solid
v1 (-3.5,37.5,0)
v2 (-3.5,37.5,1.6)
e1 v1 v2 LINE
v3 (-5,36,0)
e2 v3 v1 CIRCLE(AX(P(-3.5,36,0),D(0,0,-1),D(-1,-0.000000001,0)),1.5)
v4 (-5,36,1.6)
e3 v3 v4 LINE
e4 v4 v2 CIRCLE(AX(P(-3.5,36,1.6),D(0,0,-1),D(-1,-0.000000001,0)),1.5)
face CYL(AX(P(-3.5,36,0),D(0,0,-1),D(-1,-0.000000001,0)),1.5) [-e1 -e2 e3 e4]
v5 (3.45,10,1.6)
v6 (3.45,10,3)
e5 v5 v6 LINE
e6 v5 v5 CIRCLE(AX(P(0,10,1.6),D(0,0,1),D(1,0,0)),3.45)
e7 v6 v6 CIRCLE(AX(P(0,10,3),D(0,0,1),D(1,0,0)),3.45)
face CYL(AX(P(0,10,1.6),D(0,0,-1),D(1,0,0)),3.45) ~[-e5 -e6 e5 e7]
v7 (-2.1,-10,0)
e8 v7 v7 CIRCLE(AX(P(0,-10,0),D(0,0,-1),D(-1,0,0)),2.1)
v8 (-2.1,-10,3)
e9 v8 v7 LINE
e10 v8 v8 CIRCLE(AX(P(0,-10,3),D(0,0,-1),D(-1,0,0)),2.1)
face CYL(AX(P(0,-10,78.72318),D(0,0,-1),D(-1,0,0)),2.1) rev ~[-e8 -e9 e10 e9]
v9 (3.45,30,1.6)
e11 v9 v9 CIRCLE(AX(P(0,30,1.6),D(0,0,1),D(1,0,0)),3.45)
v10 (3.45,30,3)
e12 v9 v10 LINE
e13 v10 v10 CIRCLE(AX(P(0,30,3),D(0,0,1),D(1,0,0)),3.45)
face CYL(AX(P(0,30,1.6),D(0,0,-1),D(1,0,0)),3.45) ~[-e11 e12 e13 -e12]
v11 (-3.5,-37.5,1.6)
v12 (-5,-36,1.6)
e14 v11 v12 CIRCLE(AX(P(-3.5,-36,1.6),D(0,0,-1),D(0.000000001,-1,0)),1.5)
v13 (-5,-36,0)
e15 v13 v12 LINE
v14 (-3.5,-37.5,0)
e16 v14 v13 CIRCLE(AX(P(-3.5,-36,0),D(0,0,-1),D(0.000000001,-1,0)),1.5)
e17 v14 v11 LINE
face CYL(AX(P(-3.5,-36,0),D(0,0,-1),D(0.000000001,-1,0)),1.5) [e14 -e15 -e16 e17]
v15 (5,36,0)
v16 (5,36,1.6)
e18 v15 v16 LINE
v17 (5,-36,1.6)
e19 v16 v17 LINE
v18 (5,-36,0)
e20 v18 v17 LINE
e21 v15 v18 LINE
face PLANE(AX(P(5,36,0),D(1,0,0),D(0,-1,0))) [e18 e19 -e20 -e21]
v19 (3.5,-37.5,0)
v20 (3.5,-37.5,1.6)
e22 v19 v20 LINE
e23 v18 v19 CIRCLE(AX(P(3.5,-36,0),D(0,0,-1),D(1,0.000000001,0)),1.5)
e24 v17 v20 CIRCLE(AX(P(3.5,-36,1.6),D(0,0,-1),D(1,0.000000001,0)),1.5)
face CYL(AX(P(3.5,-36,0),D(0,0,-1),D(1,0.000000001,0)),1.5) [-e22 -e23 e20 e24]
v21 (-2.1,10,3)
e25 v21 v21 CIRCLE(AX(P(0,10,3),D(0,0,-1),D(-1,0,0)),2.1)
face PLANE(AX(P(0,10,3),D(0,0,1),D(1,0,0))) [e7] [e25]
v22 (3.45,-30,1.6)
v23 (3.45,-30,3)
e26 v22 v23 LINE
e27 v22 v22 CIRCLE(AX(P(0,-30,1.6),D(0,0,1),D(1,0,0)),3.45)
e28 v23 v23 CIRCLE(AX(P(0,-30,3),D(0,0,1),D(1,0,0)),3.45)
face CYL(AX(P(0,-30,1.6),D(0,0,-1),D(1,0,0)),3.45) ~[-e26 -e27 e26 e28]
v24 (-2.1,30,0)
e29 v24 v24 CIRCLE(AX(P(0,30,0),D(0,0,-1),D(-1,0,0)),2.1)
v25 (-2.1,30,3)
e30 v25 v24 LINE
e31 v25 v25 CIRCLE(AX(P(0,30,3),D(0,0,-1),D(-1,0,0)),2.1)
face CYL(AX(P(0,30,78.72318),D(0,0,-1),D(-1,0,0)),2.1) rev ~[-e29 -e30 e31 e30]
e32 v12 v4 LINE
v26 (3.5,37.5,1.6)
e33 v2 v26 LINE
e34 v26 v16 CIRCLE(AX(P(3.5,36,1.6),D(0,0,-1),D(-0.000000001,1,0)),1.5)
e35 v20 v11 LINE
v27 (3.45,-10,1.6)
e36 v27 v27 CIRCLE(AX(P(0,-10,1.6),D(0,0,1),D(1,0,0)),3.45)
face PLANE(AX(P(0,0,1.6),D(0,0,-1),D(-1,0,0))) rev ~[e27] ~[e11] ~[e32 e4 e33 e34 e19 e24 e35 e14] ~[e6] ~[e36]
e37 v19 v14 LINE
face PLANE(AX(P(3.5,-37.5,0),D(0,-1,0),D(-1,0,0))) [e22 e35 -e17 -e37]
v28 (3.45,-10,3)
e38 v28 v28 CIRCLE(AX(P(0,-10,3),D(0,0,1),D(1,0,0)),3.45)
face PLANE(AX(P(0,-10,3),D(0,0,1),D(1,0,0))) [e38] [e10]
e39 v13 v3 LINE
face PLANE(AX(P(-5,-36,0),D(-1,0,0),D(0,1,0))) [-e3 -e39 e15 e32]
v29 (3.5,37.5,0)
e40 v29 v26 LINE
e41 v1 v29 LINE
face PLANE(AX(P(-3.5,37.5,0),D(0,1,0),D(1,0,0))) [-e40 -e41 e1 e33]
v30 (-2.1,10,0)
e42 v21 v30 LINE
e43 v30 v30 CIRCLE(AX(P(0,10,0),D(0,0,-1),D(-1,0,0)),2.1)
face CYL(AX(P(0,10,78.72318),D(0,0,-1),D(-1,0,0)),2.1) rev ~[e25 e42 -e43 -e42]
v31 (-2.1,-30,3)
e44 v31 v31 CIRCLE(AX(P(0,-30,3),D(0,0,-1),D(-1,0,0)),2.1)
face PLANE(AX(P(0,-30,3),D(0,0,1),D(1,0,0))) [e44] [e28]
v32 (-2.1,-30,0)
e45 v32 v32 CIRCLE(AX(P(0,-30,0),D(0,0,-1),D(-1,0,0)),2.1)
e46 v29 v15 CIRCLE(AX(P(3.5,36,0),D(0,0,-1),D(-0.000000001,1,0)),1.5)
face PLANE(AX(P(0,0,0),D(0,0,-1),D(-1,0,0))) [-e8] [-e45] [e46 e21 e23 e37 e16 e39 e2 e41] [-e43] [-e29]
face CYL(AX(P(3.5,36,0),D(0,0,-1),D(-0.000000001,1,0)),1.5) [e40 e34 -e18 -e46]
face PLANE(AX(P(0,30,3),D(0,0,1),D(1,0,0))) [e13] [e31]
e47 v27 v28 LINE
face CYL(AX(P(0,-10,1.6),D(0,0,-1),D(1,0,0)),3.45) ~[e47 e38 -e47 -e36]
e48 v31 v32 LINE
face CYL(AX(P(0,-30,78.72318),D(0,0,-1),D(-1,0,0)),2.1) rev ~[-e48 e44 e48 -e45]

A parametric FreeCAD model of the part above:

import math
import FreeCAD as App
import Part
import Sketcher

doc = App.newDocument("Part")
body = doc.addObject("PartDesign::Body", "Body")

# Sketch on XY plane
sketch1 = doc.addObject("Sketcher::SketchObject", "Sketch")
body.addObject(sketch1)
sketch1.AttachmentSupport = (doc.XY_Plane, [""])
sketch1.MapMode = "FlatFace"
sketch1.addGeometry(Part.LineSegment(App.Vector(-3.5, -37.5, 0), App.Vector(3.5, -37.5, 0)), False)
sketch1.addGeometry(Part.ArcOfCircle(Part.Circle(App.Vector(3.5, -36, 0), App.Vector(0, 0, 1), 1.5), math.radians(-90), math.radians(0)), False)
sketch1.addGeometry(Part.LineSegment(App.Vector(5, -36, 0), App.Vector(5, 36, 0)), False)
sketch1.addGeometry(Part.ArcOfCircle(Part.Circle(App.Vector(3.5, 36, 0), App.Vector(0, 0, 1), 1.5), math.radians(0), math.radians(90)), False)
sketch1.addGeometry(Part.LineSegment(App.Vector(3.5, 37.5, 0), App.Vector(-3.5, 37.5, 0)), False)
sketch1.addGeometry(Part.ArcOfCircle(Part.Circle(App.Vector(-3.5, 36, 0), App.Vector(0, 0, 1), 1.5), math.radians(90), math.radians(180)), False)
sketch1.addGeometry(Part.LineSegment(App.Vector(-5, 36, 0), App.Vector(-5, -36, 0)), False)
sketch1.addGeometry(Part.ArcOfCircle(Part.Circle(App.Vector(-3.5, -36, 0), App.Vector(0, 0, 1), 1.5), math.radians(180), math.radians(270)), False)
sketch1.addConstraint(Sketcher.Constraint("Tangent", 0, 2, 1, 1))
sketch1.addConstraint(Sketcher.Constraint("Tangent", 1, 2, 2, 1))
sketch1.addConstraint(Sketcher.Constraint("Tangent", 2, 2, 3, 1))
sketch1.addConstraint(Sketcher.Constraint("Tangent", 3, 2, 4, 1))
sketch1.addConstraint(Sketcher.Constraint("Tangent", 4, 2, 5, 1))
sketch1.addConstraint(Sketcher.Constraint("Tangent", 5, 2, 6, 1))
sketch1.addConstraint(Sketcher.Constraint("Tangent", 6, 2, 7, 1))
sketch1.addConstraint(Sketcher.Constraint("Tangent", 7, 2, 0, 1))
sketch1.addConstraint(Sketcher.Constraint("Horizontal", 0))
sketch1.addConstraint(Sketcher.Constraint("Vertical", 2))
sketch1.addConstraint(Sketcher.Constraint("Horizontal", 4))
sketch1.addConstraint(Sketcher.Constraint("Vertical", 6))
sketch1.addConstraint(Sketcher.Constraint("Equal", 1, 3))
sketch1.addConstraint(Sketcher.Constraint("Equal", 3, 5))
sketch1.addConstraint(Sketcher.Constraint("Equal", 5, 7))
sketch1.addConstraint(Sketcher.Constraint("Symmetric", 1, 3, 5, 3, -1, 1))
sketch1.addConstraint(Sketcher.Constraint("Radius", 1, 1.5))
sketch1.addConstraint(Sketcher.Constraint("DistanceX", 0, 1, 0, 2, 7.0))
sketch1.addConstraint(Sketcher.Constraint("DistanceY", 2, 1, 2, 2, 72.0))
pad1 = doc.addObject("PartDesign::Pad", "Pad")
body.addObject(pad1)
pad1.Profile = sketch1
pad1.Length = 1.6

# Sketch on XY plane
sketch2 = doc.addObject("Sketcher::SketchObject", "Sketch001")
body.addObject(sketch2)
sketch2.AttachmentSupport = (doc.XY_Plane, [""])
sketch2.MapMode = "FlatFace"
sketch2.AttachmentOffset = App.Placement(App.Vector(0, 0, 1.6), App.Rotation())
sketch2.addGeometry(Part.Circle(App.Vector(0, 10, 0), App.Vector(0, 0, 1), 3.45), False)
sketch2.addGeometry(Part.Circle(App.Vector(0, 30, 0), App.Vector(0, 0, 1), 3.45), False)
sketch2.addGeometry(Part.Circle(App.Vector(0, -10, 0), App.Vector(0, 0, 1), 3.45), False)
sketch2.addGeometry(Part.Circle(App.Vector(0, -30, 0), App.Vector(0, 0, 1), 3.45), False)
sketch2.addConstraint(Sketcher.Constraint("Equal", 0, 1))
sketch2.addConstraint(Sketcher.Constraint("Equal", 1, 2))
sketch2.addConstraint(Sketcher.Constraint("Equal", 2, 3))
sketch2.addConstraint(Sketcher.Constraint("Symmetric", 0, 3, 2, 3, -1, 1))
sketch2.addConstraint(Sketcher.Constraint("Symmetric", 1, 3, 3, 3, -1, 1))
sketch2.addConstraint(Sketcher.Constraint("PointOnObject", 0, 3, -2))
sketch2.addConstraint(Sketcher.Constraint("PointOnObject", 1, 3, -2))
sketch2.addConstraint(Sketcher.Constraint("Diameter", 0, 6.9))
sketch2.addConstraint(Sketcher.Constraint("DistanceY", -1, 1, 0, 3, 10.0))
sketch2.addConstraint(Sketcher.Constraint("DistanceY", -1, 1, 1, 3, 30.0))
pad2 = doc.addObject("PartDesign::Pad", "Pad001")
body.addObject(pad2)
pad2.Profile = sketch2
pad2.Length = 1.4

# Sketch on XY plane
sketch3 = doc.addObject("Sketcher::SketchObject", "Sketch002")
body.addObject(sketch3)
sketch3.AttachmentSupport = (doc.XY_Plane, [""])
sketch3.MapMode = "FlatFace"
sketch3.AttachmentOffset = App.Placement(App.Vector(0, 0, 3), App.Rotation())
sketch3.addGeometry(Part.Circle(App.Vector(0, 30, 0), App.Vector(0, 0, 1), 2.1), False)
sketch3.addGeometry(Part.Circle(App.Vector(0, 10, 0), App.Vector(0, 0, 1), 2.1), False)
sketch3.addGeometry(Part.Circle(App.Vector(0, -10, 0), App.Vector(0, 0, 1), 2.1), False)
sketch3.addGeometry(Part.Circle(App.Vector(0, -30, 0), App.Vector(0, 0, 1), 2.1), False)
sketch3.addConstraint(Sketcher.Constraint("Equal", 0, 1))
sketch3.addConstraint(Sketcher.Constraint("Equal", 1, 2))
sketch3.addConstraint(Sketcher.Constraint("Equal", 2, 3))
sketch3.addConstraint(Sketcher.Constraint("Symmetric", 1, 3, 2, 3, -1, 1))
sketch3.addConstraint(Sketcher.Constraint("Symmetric", 0, 3, 3, 3, -1, 1))
sketch3.addConstraint(Sketcher.Constraint("PointOnObject", 0, 3, -2))
sketch3.addConstraint(Sketcher.Constraint("PointOnObject", 1, 3, -2))
sketch3.addConstraint(Sketcher.Constraint("Diameter", 0, 4.2))
sketch3.addConstraint(Sketcher.Constraint("DistanceY", -1, 1, 0, 3, 30.0))
sketch3.addConstraint(Sketcher.Constraint("DistanceY", -1, 1, 1, 3, 10.0))
doc.recompute()
hole = doc.addObject("PartDesign::Hole", "Hole")
body.addObject(hole)
hole.Profile = sketch3
hole.ThreadType = "None"
hole.Diameter = 4.2
hole.DepthType = "ThroughAll"

doc.recompute()
